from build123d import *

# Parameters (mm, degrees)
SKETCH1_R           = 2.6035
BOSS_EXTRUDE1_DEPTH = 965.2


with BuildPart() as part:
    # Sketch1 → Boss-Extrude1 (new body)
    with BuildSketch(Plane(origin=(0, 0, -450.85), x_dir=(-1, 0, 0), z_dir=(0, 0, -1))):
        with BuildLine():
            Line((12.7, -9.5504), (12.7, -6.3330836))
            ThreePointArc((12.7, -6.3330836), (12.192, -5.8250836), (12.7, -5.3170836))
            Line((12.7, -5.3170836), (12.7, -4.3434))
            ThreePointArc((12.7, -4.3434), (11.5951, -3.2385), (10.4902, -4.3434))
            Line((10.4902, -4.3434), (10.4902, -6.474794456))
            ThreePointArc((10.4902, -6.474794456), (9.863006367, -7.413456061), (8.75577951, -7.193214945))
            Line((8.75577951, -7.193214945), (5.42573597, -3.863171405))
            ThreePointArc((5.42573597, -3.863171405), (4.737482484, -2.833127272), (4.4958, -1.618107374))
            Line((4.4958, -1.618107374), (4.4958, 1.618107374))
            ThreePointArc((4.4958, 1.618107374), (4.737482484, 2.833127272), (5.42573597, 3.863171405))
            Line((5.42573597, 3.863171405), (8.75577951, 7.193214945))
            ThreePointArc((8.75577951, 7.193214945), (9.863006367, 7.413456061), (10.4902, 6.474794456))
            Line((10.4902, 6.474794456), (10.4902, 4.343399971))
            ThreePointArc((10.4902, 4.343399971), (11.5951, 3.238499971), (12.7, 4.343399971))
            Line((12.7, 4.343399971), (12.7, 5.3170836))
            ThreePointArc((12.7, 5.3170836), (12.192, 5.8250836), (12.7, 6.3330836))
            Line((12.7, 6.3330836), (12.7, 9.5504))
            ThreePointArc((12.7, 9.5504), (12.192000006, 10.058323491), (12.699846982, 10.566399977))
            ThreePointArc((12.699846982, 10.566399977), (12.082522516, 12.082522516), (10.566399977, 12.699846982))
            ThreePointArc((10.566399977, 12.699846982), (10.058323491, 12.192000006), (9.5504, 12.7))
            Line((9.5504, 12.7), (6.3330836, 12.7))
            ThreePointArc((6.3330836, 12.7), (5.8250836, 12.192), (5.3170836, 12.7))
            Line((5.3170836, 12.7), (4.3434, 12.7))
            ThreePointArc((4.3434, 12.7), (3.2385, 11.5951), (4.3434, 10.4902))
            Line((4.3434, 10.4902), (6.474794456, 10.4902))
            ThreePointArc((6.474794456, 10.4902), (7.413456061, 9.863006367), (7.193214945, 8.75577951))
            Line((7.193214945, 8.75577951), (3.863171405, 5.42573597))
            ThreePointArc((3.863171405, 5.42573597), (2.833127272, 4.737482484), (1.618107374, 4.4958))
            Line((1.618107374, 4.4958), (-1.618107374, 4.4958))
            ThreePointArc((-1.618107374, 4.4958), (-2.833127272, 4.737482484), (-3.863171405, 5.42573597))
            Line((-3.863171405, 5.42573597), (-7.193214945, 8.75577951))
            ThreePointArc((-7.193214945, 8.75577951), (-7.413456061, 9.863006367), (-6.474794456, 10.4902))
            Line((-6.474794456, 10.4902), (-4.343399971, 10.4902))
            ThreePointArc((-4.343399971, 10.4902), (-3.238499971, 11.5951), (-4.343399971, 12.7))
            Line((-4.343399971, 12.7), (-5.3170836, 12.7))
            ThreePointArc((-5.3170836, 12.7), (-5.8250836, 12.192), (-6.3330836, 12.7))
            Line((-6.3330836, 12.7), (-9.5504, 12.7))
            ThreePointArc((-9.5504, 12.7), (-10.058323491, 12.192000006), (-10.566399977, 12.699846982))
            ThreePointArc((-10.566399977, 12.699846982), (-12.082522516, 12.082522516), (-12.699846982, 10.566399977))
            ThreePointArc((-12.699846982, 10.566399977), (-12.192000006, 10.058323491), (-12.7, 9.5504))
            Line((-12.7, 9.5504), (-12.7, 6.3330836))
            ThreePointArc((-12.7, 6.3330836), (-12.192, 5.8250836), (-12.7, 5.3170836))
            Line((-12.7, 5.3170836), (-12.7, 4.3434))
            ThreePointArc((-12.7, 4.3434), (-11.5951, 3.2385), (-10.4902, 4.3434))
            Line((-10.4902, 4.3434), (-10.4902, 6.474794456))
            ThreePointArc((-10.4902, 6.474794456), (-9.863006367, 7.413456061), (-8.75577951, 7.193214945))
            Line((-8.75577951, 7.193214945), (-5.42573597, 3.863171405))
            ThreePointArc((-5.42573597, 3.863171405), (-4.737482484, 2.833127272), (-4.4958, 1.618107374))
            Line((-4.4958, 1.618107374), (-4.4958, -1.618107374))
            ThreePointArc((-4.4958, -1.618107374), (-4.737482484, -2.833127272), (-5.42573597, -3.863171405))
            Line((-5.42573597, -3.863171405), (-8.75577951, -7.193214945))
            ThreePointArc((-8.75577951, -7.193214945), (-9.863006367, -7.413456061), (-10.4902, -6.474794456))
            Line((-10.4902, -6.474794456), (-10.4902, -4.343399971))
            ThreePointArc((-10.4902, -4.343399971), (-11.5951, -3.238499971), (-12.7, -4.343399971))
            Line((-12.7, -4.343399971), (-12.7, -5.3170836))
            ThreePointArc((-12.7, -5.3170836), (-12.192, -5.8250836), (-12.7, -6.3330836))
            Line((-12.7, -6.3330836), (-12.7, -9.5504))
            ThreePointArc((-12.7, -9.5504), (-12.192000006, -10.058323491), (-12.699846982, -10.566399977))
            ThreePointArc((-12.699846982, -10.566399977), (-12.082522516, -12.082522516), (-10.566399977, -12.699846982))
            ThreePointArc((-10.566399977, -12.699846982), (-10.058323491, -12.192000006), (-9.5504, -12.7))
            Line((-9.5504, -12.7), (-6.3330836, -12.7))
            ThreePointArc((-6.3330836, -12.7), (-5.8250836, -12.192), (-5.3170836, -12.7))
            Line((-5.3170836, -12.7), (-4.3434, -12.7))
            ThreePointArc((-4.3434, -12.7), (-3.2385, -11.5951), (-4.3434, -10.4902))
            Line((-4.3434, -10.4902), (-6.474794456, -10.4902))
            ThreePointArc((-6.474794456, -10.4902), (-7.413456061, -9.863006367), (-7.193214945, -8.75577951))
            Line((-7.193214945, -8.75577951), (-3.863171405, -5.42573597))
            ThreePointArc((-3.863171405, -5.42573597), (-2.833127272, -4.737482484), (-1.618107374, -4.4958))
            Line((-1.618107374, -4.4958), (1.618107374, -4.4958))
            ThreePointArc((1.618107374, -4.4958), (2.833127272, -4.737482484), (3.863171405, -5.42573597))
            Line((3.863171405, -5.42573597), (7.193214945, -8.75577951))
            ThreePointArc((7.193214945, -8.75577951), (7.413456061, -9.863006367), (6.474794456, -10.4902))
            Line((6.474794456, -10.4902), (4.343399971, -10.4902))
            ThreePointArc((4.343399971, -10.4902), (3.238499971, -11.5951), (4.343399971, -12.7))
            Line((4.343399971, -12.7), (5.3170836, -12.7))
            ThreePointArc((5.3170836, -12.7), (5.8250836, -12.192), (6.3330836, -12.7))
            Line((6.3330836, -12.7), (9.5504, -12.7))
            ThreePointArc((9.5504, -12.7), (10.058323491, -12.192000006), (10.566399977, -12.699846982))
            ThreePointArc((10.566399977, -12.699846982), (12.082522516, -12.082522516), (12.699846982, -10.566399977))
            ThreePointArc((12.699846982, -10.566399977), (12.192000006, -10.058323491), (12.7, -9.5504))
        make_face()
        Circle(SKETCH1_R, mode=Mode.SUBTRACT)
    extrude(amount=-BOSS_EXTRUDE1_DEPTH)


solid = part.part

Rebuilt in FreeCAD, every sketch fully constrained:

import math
import FreeCAD as App
import Part
import Sketcher

V = App.Vector
Q = App.Units.Quantity

doc = App.newDocument("Part")
body = doc.addObject("PartDesign::Body", "Body")

sketch1 = doc.addObject("Sketcher::SketchObject", "Sketch")
body.addObject(sketch1)
sketch1.AttachmentSupport = (doc.XY_Plane, [""])
sketch1.MapMode = "FlatFace"
sketch1.AttachmentOffset = App.Placement(V(0, 0, -17.75 * 25.4), App.Rotation())
sketch1.addGeometry([
    Part.LineSegment(V(-12.7, -9.6, 0), V(-12.7, -6.3, 0)),
    Part.ArcOfCircle(Part.Circle(V(-12.7, -5.8, 0), V(0, 0, 1), 0.5), math.radians(-90), math.radians(90)),
    Part.LineSegment(V(-12.7, -5.3, 0), V(-12.7, -4.3, 0)),
    Part.ArcOfCircle(Part.Circle(V(-11.6, -4.3, 0), V(0, 0, 1), 1.1), math.radians(0), math.radians(180)),
    Part.LineSegment(V(-10.5, -4.3, 0), V(-10.5, -6.5, 0)),
    Part.ArcOfCircle(Part.Circle(V(-9.5, -6.5, 0), V(0, 0, 1), 1), math.radians(180), math.radians(315)),
    Part.LineSegment(V(-8.8, -7.2, 0), V(-5.4, -3.9, 0)),
    Part.ArcOfCircle(Part.Circle(V(-7.7, -1.6, 0), V(0, 0, 1), 3.2), math.radians(-45), math.radians(0)),
    Part.LineSegment(V(-4.5, -1.6, 0), V(-4.5, 1.6, 0)),
    Part.ArcOfCircle(Part.Circle(V(-7.7, 1.6, 0), V(0, 0, 1), 3.2), math.radians(0), math.radians(45)),
    Part.LineSegment(V(-5.4, 3.9, 0), V(-8.8, 7.2, 0)),
    Part.ArcOfCircle(Part.Circle(V(-9.5, 6.5, 0), V(0, 0, 1), 1), math.radians(45), math.radians(180)),
    Part.LineSegment(V(-10.5, 6.5, 0), V(-10.5, 4.3, 0)),
    Part.ArcOfCircle(Part.Circle(V(-11.6, 4.3, 0), V(0, 0, 1), 1.1), math.radians(180), math.radians(360)),
    Part.LineSegment(V(-12.7, 4.3, 0), V(-12.7, 5.3, 0)),
    Part.ArcOfCircle(Part.Circle(V(-12.7, 5.8, 0), V(0, 0, 1), 0.5), math.radians(-90), math.radians(90)),
    Part.LineSegment(V(-12.7, 6.3, 0), V(-12.7, 9.6, 0)),
    Part.ArcOfCircle(Part.Circle(V(-12.7, 10.1, 0), V(0, 0, 1), 0.5), math.radians(-90), math.radians(90)),
    Part.ArcOfCircle(Part.Circle(V(-10.6, 10.6, 0), V(0, 0, 1), 2.1), math.radians(89), math.radians(181)),
    Part.ArcOfCircle(Part.Circle(V(-10.1, 12.7, 0), V(0, 0, 1), 0.5), math.radians(-180), math.radians(0)),
    Part.LineSegment(V(-9.6, 12.7, 0), V(-6.3, 12.7, 0)),
    Part.ArcOfCircle(Part.Circle(V(-5.8, 12.7, 0), V(0, 0, 1), 0.5), math.radians(180), math.radians(360)),
    Part.LineSegment(V(-5.3, 12.7, 0), V(-4.3, 12.7, 0)),
    Part.ArcOfCircle(Part.Circle(V(-4.3, 11.6, 0), V(0, 0, 1), 1.1), math.radians(-90), math.radians(90)),
    Part.LineSegment(V(-4.3, 10.5, 0), V(-6.5, 10.5, 0)),
    Part.ArcOfCircle(Part.Circle(V(-6.5, 9.5, 0), V(0, 0, 1), 1), math.radians(90), math.radians(225)),
    Part.LineSegment(V(-7.2, 8.8, 0), V(-3.9, 5.4, 0)),
    Part.ArcOfCircle(Part.Circle(V(-1.6, 7.7, 0), V(0, 0, 1), 3.2), math.radians(-135), math.radians(-90)),
    Part.LineSegment(V(-1.6, 4.5, 0), V(1.6, 4.5, 0)),
    Part.ArcOfCircle(Part.Circle(V(1.6, 7.7, 0), V(0, 0, 1), 3.2), math.radians(-90), math.radians(-45)),
    Part.LineSegment(V(3.9, 5.4, 0), V(7.2, 8.8, 0)),
    Part.ArcOfCircle(Part.Circle(V(6.5, 9.5, 0), V(0, 0, 1), 1), math.radians(-45), math.radians(90)),
    Part.LineSegment(V(6.5, 10.5, 0), V(4.3, 10.5, 0)),
    Part.ArcOfCircle(Part.Circle(V(4.3, 11.6, 0), V(0, 0, 1), 1.1), math.radians(90), math.radians(270)),
    Part.LineSegment(V(4.3, 12.7, 0), V(5.3, 12.7, 0)),
    Part.ArcOfCircle(Part.Circle(V(5.8, 12.7, 0), V(0, 0, 1), 0.5), math.radians(180), math.radians(360)),
    Part.LineSegment(V(6.3, 12.7, 0), V(9.6, 12.7, 0)),
    Part.ArcOfCircle(Part.Circle(V(10.1, 12.7, 0), V(0, 0, 1), 0.5), math.radians(180), math.radians(360)),
    Part.ArcOfCircle(Part.Circle(V(10.6, 10.6, 0), V(0, 0, 1), 2.1), math.radians(-1), math.radians(91)),
    Part.ArcOfCircle(Part.Circle(V(12.7, 10.1, 0), V(0, 0, 1), 0.5), math.radians(90), math.radians(270)),
    Part.LineSegment(V(12.7, 9.6, 0), V(12.7, 6.3, 0)),
    Part.ArcOfCircle(Part.Circle(V(12.7, 5.8, 0), V(0, 0, 1), 0.5), math.radians(90), math.radians(270)),
    Part.LineSegment(V(12.7, 5.3, 0), V(12.7, 4.3, 0)),
    Part.ArcOfCircle(Part.Circle(V(11.6, 4.3, 0), V(0, 0, 1), 1.1), math.radians(180), math.radians(360)),
    Part.LineSegment(V(10.5, 4.3, 0), V(10.5, 6.5, 0)),
    Part.ArcOfCircle(Part.Circle(V(9.5, 6.5, 0), V(0, 0, 1), 1), math.radians(0), math.radians(135)),
    Part.LineSegment(V(8.8, 7.2, 0), V(5.4, 3.9, 0)),
    Part.ArcOfCircle(Part.Circle(V(7.7, 1.6, 0), V(0, 0, 1), 3.2), math.radians(135), math.radians(180)),
    Part.LineSegment(V(4.5, 1.6, 0), V(4.5, -1.6, 0)),
    Part.ArcOfCircle(Part.Circle(V(7.7, -1.6, 0), V(0, 0, 1), 3.2), math.radians(180), math.radians(225)),
    Part.LineSegment(V(5.4, -3.9, 0), V(8.8, -7.2, 0)),
    Part.ArcOfCircle(Part.Circle(V(9.5, -6.5, 0), V(0, 0, 1), 1), math.radians(-135), math.radians(0)),
    Part.LineSegment(V(10.5, -6.5, 0), V(10.5, -4.3, 0)),
    Part.ArcOfCircle(Part.Circle(V(11.6, -4.3, 0), V(0, 0, 1), 1.1), math.radians(0), math.radians(180)),
    Part.LineSegment(V(12.7, -4.3, 0), V(12.7, -5.3, 0)),
    Part.ArcOfCircle(Part.Circle(V(12.7, -5.8, 0), V(0, 0, 1), 0.5), math.radians(90), math.radians(270)),
    Part.LineSegment(V(12.7, -6.3, 0), V(12.7, -9.6, 0)),
    Part.ArcOfCircle(Part.Circle(V(12.7, -10.1, 0), V(0, 0, 1), 0.5), math.radians(90), math.radians(270)),
    Part.ArcOfCircle(Part.Circle(V(10.6, -10.6, 0), V(0, 0, 1), 2.1), math.radians(-91), math.radians(1)),
    Part.ArcOfCircle(Part.Circle(V(10.1, -12.7, 0), V(0, 0, 1), 0.5), math.radians(0), math.radians(180)),
    Part.LineSegment(V(9.6, -12.7, 0), V(6.3, -12.7, 0)),
    Part.ArcOfCircle(Part.Circle(V(5.8, -12.7, 0), V(0, 0, 1), 0.5), math.radians(0), math.radians(180)),
    Part.LineSegment(V(5.3, -12.7, 0), V(4.3, -12.7, 0)),
    Part.ArcOfCircle(Part.Circle(V(4.3, -11.6, 0), V(0, 0, 1), 1.1), math.radians(90), math.radians(270)),
    Part.LineSegment(V(4.3, -10.5, 0), V(6.5, -10.5, 0)),
    Part.ArcOfCircle(Part.Circle(V(6.5, -9.5, 0), V(0, 0, 1), 1), math.radians(-90), math.radians(45)),
    Part.LineSegment(V(7.2, -8.8, 0), V(3.9, -5.4, 0)),
    Part.ArcOfCircle(Part.Circle(V(1.6, -7.7, 0), V(0, 0, 1), 3.2), math.radians(45), math.radians(90)),
    Part.LineSegment(V(1.6, -4.5, 0), V(-1.6, -4.5, 0)),
    Part.ArcOfCircle(Part.Circle(V(-1.6, -7.7, 0), V(0, 0, 1), 3.2), math.radians(90), math.radians(135)),
    Part.LineSegment(V(-3.9, -5.4, 0), V(-7.2, -8.8, 0)),
    Part.ArcOfCircle(Part.Circle(V(-6.5, -9.5, 0), V(0, 0, 1), 1), math.radians(135), math.radians(270)),
    Part.LineSegment(V(-6.5, -10.5, 0), V(-4.3, -10.5, 0)),
    Part.ArcOfCircle(Part.Circle(V(-4.3, -11.6, 0), V(0, 0, 1), 1.1), math.radians(-90), math.radians(90)),
    Part.LineSegment(V(-4.3, -12.7, 0), V(-5.3, -12.7, 0)),
    Part.ArcOfCircle(Part.Circle(V(-5.8, -12.7, 0), V(0, 0, 1), 0.5), math.radians(0), math.radians(180)),
    Part.LineSegment(V(-6.3, -12.7, 0), V(-9.6, -12.7, 0)),
    Part.ArcOfCircle(Part.Circle(V(-10.1, -12.7, 0), V(0, 0, 1), 0.5), math.radians(0), math.radians(180)),
    Part.ArcOfCircle(Part.Circle(V(-10.6, -10.6, 0), V(0, 0, 1), 2.1), math.radians(179), math.radians(271)),
    Part.ArcOfCircle(Part.Circle(V(-12.7, -10.1, 0), V(0, 0, 1), 0.5), math.radians(-90), math.radians(90)),
    Part.Circle(V(0, 0, 0), V(0, 0, 1), 2.6),
], False)
sketch1.addConstraint([
    Sketcher.Constraint("Coincident", 0, 2, 1, 1),
    Sketcher.Constraint("Coincident", 1, 2, 2, 1),
    Sketcher.Constraint("Tangent", 2, 2, 3, 2),
    Sketcher.Constraint("Tangent", 3, 1, 4, 1),
    Sketcher.Constraint("Tangent", 4, 2, 5, 1),
    Sketcher.Constraint("Tangent", 5, 2, 6, 1),
    Sketcher.Constraint("Tangent", 6, 2, 7, 1),
    Sketcher.Constraint("Tangent", 7, 2, 8, 1),
    Sketcher.Constraint("Tangent", 8, 2, 9, 1),
    Sketcher.Constraint("Tangent", 9, 2, 10, 1),
    Sketcher.Constraint("Tangent", 10, 2, 11, 1),
    Sketcher.Constraint("Tangent", 11, 2, 12, 1),
    Sketcher.Constraint("Tangent", 12, 2, 13, 2),
    Sketcher.Constraint("Tangent", 13, 1, 14, 1),
    Sketcher.Constraint("Coincident", 14, 2, 15, 1),
    Sketcher.Constraint("Coincident", 15, 2, 16, 1),
    Sketcher.Constraint("Coincident", 16, 2, 17, 1),
    Sketcher.Constraint("Coincident", 17, 2, 18, 2),
    Sketcher.Constraint("Coincident", 18, 1, 19, 1),
    Sketcher.Constraint("Coincident", 19, 2, 20, 1),
    Sketcher.Constraint("Coincident", 20, 2, 21, 1),
    Sketcher.Constraint("Coincident", 21, 2, 22, 1),
    Sketcher.Constraint("Tangent", 22, 2, 23, 2),
    Sketcher.Constraint("Tangent", 23, 1, 24, 1),
    Sketcher.Constraint("Tangent", 24, 2, 25, 1),
    Sketcher.Constraint("Tangent", 25, 2, 26, 1),
    Sketcher.Constraint("Tangent", 26, 2, 27, 1),
    Sketcher.Constraint("Tangent", 27, 2, 28, 1),
    Sketcher.Constraint("Tangent", 28, 2, 29, 1),
    Sketcher.Constraint("Tangent", 29, 2, 30, 1),
    Sketcher.Constraint("Tangent", 30, 2, 31, 1),
    Sketcher.Constraint("Tangent", 31, 2, 32, 1),
    Sketcher.Constraint("Tangent", 32, 2, 33, 2),
    Sketcher.Constraint("Tangent", 33, 1, 34, 1),
    Sketcher.Constraint("Coincident", 34, 2, 35, 1),
    Sketcher.Constraint("Coincident", 35, 2, 36, 1),
    Sketcher.Constraint("Coincident", 36, 2, 37, 1),
    Sketcher.Constraint("Coincident", 37, 2, 38, 2),
    Sketcher.Constraint("Coincident", 38, 1, 39, 1),
    Sketcher.Constraint("Coincident", 39, 2, 40, 1),
    Sketcher.Constraint("Coincident", 40, 2, 41, 1),
    Sketcher.Constraint("Coincident", 41, 2, 42, 1),
    Sketcher.Constraint("Tangent", 42, 2, 43, 2),
    Sketcher.Constraint("Tangent", 43, 1, 44, 1),
    Sketcher.Constraint("Tangent", 44, 2, 45, 1),
    Sketcher.Constraint("Tangent", 45, 2, 46, 1),
    Sketcher.Constraint("Tangent", 46, 2, 47, 1),
    Sketcher.Constraint("Tangent", 47, 2, 48, 1),
    Sketcher.Constraint("Tangent", 48, 2, 49, 1),
    Sketcher.Constraint("Tangent", 49, 2, 50, 1),
    Sketcher.Constraint("Tangent", 50, 2, 51, 1),
    Sketcher.Constraint("Tangent", 51, 2, 52, 1),
    Sketcher.Constraint("Tangent", 52, 2, 53, 2),
    Sketcher.Constraint("Tangent", 53, 1, 54, 1),
    Sketcher.Constraint("Coincident", 54, 2, 55, 1),
    Sketcher.Constraint("Coincident", 55, 2, 56, 1),
    Sketcher.Constraint("Coincident", 56, 2, 57, 1),
    Sketcher.Constraint("Coincident", 57, 2, 58, 2),
    Sketcher.Constraint("Coincident", 58, 1, 59, 1),
    Sketcher.Constraint("Coincident", 59, 2, 60, 1),
    Sketcher.Constraint("Coincident", 60, 2, 61, 1),
    Sketcher.Constraint("Coincident", 61, 2, 62, 1),
    Sketcher.Constraint("Tangent", 62, 2, 63, 2),
    Sketcher.Constraint("Tangent", 63, 1, 64, 1),
    Sketcher.Constraint("Tangent", 64, 2, 65, 1),
    Sketcher.Constraint("Tangent", 65, 2, 66, 1),
    Sketcher.Constraint("Tangent", 66, 2, 67, 1),
    Sketcher.Constraint("Tangent", 67, 2, 68, 1),
    Sketcher.Constraint("Tangent", 68, 2, 69, 1),
    Sketcher.Constraint("Tangent", 69, 2, 70, 1),
    Sketcher.Constraint("Tangent", 70, 2, 71, 1),
    Sketcher.Constraint("Tangent", 71, 2, 72, 1),
    Sketcher.Constraint("Tangent", 72, 2, 73, 2),
    Sketcher.Constraint("Tangent", 73, 1, 74, 1),
    Sketcher.Constraint("Coincident", 74, 2, 75, 1),
    Sketcher.Constraint("Coincident", 75, 2, 76, 1),
    Sketcher.Constraint("Coincident", 76, 2, 77, 1),
    Sketcher.Constraint("Coincident", 77, 2, 78, 2),
    Sketcher.Constraint("Coincident", 78, 1, 79, 1),
    Sketcher.Constraint("Coincident", 79, 2, 0, 1),
    Sketcher.Constraint("Vertical", 0),
    Sketcher.Constraint("Vertical", 2),
    Sketcher.Constraint("Vertical", 4),
    Sketcher.Constraint("Vertical", 8),
    Sketcher.Constraint("Vertical", 12),
    Sketcher.Constraint("Vertical", 14),
    Sketcher.Constraint("Vertical", 16),
    Sketcher.Constraint("Horizontal", 20),
    Sketcher.Constraint("Horizontal", 22),
    Sketcher.Constraint("Horizontal", 24),
    Sketcher.Constraint("Horizontal", 28),
    Sketcher.Constraint("Horizontal", 32),
    Sketcher.Constraint("Horizontal", 34),
    Sketcher.Constraint("Horizontal", 36),
    Sketcher.Constraint("Vertical", 40),
    Sketcher.Constraint("Vertical", 42),
    Sketcher.Constraint("Vertical", 44),
    Sketcher.Constraint("Vertical", 48),
    Sketcher.Constraint("Vertical", 52),
    Sketcher.Constraint("Vertical", 54),
    Sketcher.Constraint("Vertical", 56),
    Sketcher.Constraint("Horizontal", 60),
    Sketcher.Constraint("Horizontal", 62),
    Sketcher.Constraint("Horizontal", 64),
    Sketcher.Constraint("Horizontal", 68),
    Sketcher.Constraint("Horizontal", 72),
    Sketcher.Constraint("Horizontal", 74),
    Sketcher.Constraint("Horizontal", 76),
    Sketcher.Constraint("Coincident", 80, 3, -1, 1),
    Sketcher.Constraint("Equal", 7, 9),
    Sketcher.Constraint("Equal", 5, 11),
    Sketcher.Constraint("Equal", 3, 13),
    Sketcher.Constraint("Equal", 1, 15),
    Sketcher.Constraint("Equal", 15, 17),
    Sketcher.Constraint("Equal", 17, 19),
    Sketcher.Constraint("Equal", 19, 21),
    Sketcher.Constraint("Equal", 13, 23),
    Sketcher.Constraint("Equal", 11, 25),
    Sketcher.Constraint("Equal", 9, 27),
    Sketcher.Constraint("Equal", 27, 29),
    Sketcher.Constraint("Equal", 25, 31),
    Sketcher.Constraint("Equal", 23, 33),
    Sketcher.Constraint("Equal", 21, 35),
    Sketcher.Constraint("Equal", 35, 37),
    Sketcher.Constraint("Equal", 18, 38),
    Sketcher.Constraint("Equal", 37, 39),
    Sketcher.Constraint("Equal", 39, 41),
    Sketcher.Constraint("Equal", 33, 43),
    Sketcher.Constraint("Equal", 31, 45),
    Sketcher.Constraint("Equal", 29, 47),
    Sketcher.Constraint("Equal", 47, 49),
    Sketcher.Constraint("Equal", 45, 51),
    Sketcher.Constraint("Equal", 43, 53),
    Sketcher.Constraint("Equal", 41, 55),
    Sketcher.Constraint("Equal", 55, 57),
    Sketcher.Constraint("Equal", 38, 58),
    Sketcher.Constraint("Equal", 57, 59),
    Sketcher.Constraint("Equal", 59, 61),
    Sketcher.Constraint("Equal", 53, 63),
    Sketcher.Constraint("Equal", 51, 65),
    Sketcher.Constraint("Equal", 49, 67),
    Sketcher.Constraint("Equal", 67, 69),
    Sketcher.Constraint("Equal", 65, 71),
    Sketcher.Constraint("Equal", 63, 73),
    Sketcher.Constraint("Equal", 61, 75),
    Sketcher.Constraint("Equal", 75, 77),
    Sketcher.Constraint("Equal", 58, 78),
    Sketcher.Constraint("Equal", 77, 79),
    Sketcher.Constraint("Symmetric", 1, 3, 41, 3, -1, 1),
    Sketcher.Constraint("Symmetric", 3, 3, 43, 3, -1, 1),
    Sketcher.Constraint("Symmetric", 7, 3, 47, 3, -1, 1),
    Sketcher.Constraint("Symmetric", 11, 3, 51, 3, -1, 1),
    Sketcher.Constraint("Symmetric", 15, 3, 55, 3, -1, 1),
    Sketcher.Constraint("Symmetric", 17, 3, 57, 3, -1, 1),
    Sketcher.Constraint("Symmetric", 18, 3, 58, 3, -1, 1),
    Sketcher.Constraint("Symmetric", 19, 3, 59, 3, -1, 1),
    Sketcher.Constraint("Symmetric", 21, 3, 61, 3, -1, 1),
    Sketcher.Constraint("Symmetric", 23, 3, 63, 3, -1, 1),
    Sketcher.Constraint("Symmetric", 27, 3, 67, 3, -1, 1),
    Sketcher.Constraint("Symmetric", 31, 3, 71, 3, -1, 1),
    Sketcher.Constraint("Symmetric", 35, 3, 75, 3, -1, 1),
    Sketcher.Constraint("Symmetric", 37, 3, 77, 3, -1, 1),
    Sketcher.Constraint("Symmetric", 38, 3, 78, 3, -1, 1),
    Sketcher.Constraint("Symmetric", 39, 3, 79, 3, -1, 1),
    Sketcher.Constraint("Symmetric", 25, 3, 31, 3, -2),
    Sketcher.Constraint("Symmetric", 21, 3, 35, 3, -2),
    Sketcher.Constraint("Symmetric", 19, 3, 37, 3, -2),
    Sketcher.Constraint("Symmetric", 18, 3, 38, 3, -2),
    Sketcher.Constraint("Symmetric", 17, 3, 39, 3, -2),
    Sketcher.Constraint("Symmetric", 15, 3, 41, 3, -2),
    Sketcher.Constraint("Symmetric", 13, 3, 43, 3, -2),
    Sketcher.Constraint("Symmetric", 10, 2, 45, 2, -2),
    Sketcher.Constraint("Symmetric", 6, 2, 49, 2, -2),
    Sketcher.Constraint("Symmetric", 66, 2, 69, 2, -2),
    Sketcher.Constraint("Perpendicular", 6, 10),
    Sketcher.Constraint("Parallel", 10, 26),
    Sketcher.Constraint("Perpendicular", 26, 30),
    Sketcher.Constraint("Horizontal", 19, 3, 21, 3),
    Sketcher.Constraint("Horizontal", 3, 3, 53, 3),
    Sketcher.Constraint("Horizontal", 37, 3, 19, 2),
    Sketcher.Constraint("Horizontal", 20, 2, 21, 2),
    Sketcher.Constraint("Horizontal", 34, 2, 35, 2),
    Sketcher.Constraint("Horizontal", 77, 3, 59, 2),
    Sketcher.Constraint("Horizontal", 74, 2, 75, 2),
    Sketcher.Constraint("Vertical", 15, 3, 17, 3),
    Sketcher.Constraint("Vertical", 33, 3, 63, 3),
    Sketcher.Constraint("Vertical", 23, 3, 73, 3),
    Sketcher.Constraint("Vertical", 79, 3, 0, 2),
    Sketcher.Constraint("Vertical", 0, 2, 1, 2),
    Sketcher.Constraint("Vertical", 14, 2, 15, 2),
    Sketcher.Constraint("Vertical", 57, 3, 39, 2),
    Sketcher.Constraint("Vertical", 54, 2, 55, 2),
    Sketcher.Constraint("Equal", 76, 0),
    Sketcher.Constraint("Equal", 74, 2),
    Sketcher.Constraint("Equal", 72, 4),
    Sketcher.Constraint("Equal", 68, 8),
    Sketcher.Constraint("Equal", 10, 26),
    Sketcher.Constraint("Radius", 1, Q("0.02 in")),
    Sketcher.Constraint("Radius", 5, Q("0.04 in")),
    Sketcher.Constraint("Diameter", 80, Q("0.205 in")),
    Sketcher.Constraint("Radius", 7, Q("0.125 in")),
    Sketcher.Constraint("Radius", 18, Q("0.083 in")),
    Sketcher.Constraint("DistanceX", 1, 3, -1, 1, Q("0.5 in")),
    Sketcher.Constraint("DistanceY", -1, 1, 19, 3, Q("0.5 in")),
    Sketcher.Constraint("Radius", 3, Q("0.0435 in")),
    Sketcher.Constraint("DistanceY", 3, 3, -1, 1, Q("0.171 in")),
    Sketcher.Constraint("DistanceX", 7, 3, -1, 1, Q("0.302 in")),
    Sketcher.Constraint("DistanceY", -1, 1, 17, 3, Q("0.396 in")),
    Sketcher.Constraint("DistanceX", 18, 3, -1, 1, Q("0.417 in")),
    Sketcher.Constraint("DistanceY", -1, 1, 18, 3, Q("0.417 in")),
    Sketcher.Constraint("DistanceX", 20, 1, 20, 2, Q("3.217316 mm")),
    Sketcher.Constraint("DistanceX", 24, 2, 24, 1, Q("2.131394 mm")),
])
pad1 = doc.addObject("PartDesign::Pad", "Pad")
body.addObject(pad1)
pad1.Profile = sketch1
pad1.Length = Q("38 in")

doc.recompute()
